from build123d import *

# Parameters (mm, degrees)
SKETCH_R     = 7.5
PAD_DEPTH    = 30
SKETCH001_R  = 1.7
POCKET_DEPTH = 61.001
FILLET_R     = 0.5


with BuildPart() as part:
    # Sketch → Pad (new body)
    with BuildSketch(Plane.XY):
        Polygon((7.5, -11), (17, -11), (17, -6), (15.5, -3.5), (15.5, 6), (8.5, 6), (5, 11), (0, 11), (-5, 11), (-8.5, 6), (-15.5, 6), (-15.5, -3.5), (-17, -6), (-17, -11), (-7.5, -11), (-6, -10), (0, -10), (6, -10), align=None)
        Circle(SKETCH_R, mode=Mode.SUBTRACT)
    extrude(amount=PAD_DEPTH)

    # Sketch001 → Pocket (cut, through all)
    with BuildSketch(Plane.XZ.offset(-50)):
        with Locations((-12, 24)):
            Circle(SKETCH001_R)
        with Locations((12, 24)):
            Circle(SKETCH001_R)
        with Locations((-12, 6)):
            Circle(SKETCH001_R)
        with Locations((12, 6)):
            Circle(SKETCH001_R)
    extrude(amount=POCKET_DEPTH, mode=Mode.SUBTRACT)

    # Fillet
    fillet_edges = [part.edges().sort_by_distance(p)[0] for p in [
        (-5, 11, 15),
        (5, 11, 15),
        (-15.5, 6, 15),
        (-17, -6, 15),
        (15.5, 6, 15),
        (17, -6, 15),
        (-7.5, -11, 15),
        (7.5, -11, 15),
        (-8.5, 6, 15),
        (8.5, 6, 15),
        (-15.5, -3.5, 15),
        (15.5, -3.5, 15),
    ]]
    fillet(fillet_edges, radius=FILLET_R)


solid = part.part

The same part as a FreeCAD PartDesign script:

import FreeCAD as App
import Part
import Sketcher
from FreeCAD import Vector
Q = App.Units.Quantity


def edges_at(feature, points):
    """Names of the edges that pass closest to the given points."""
    edges = feature.Shape.Edges
    near = lambda p: min(range(len(edges)), key=lambda i: edges[i].distToShape(Part.Vertex(*p))[0])
    return sorted({f"Edge{near(p) + 1}" for p in points})

doc = App.newDocument("Part")
body = doc.addObject("PartDesign::Body", "Body")

sketch1 = body.newObject("Sketcher::SketchObject", "Sketch")
sketch1.AttachmentSupport = (doc.getObject("XY_Plane"), [""])
sketch1.MapMode = "FlatFace"
sketch1.addGeometry([
    Part.LineSegment(Vector(7.5, -11, 0), Vector(17, -11, 0)),
    Part.LineSegment(Vector(17, -11, 0), Vector(17, -6, 0)),
    Part.LineSegment(Vector(17, -6, 0), Vector(15.5, -3.5, 0)),
    Part.LineSegment(Vector(15.5, -3.5, 0), Vector(15.5, 6, 0)),
    Part.LineSegment(Vector(15.5, 6, 0), Vector(8.5, 6, 0)),
    Part.LineSegment(Vector(8.5, 6, 0), Vector(5, 11, 0)),
    Part.LineSegment(Vector(5, 11, 0), Vector(-5, 11, 0)),
    Part.LineSegment(Vector(-5, 11, 0), Vector(-8.5, 6, 0)),
    Part.LineSegment(Vector(-8.5, 6, 0), Vector(-15.5, 6, 0)),
    Part.LineSegment(Vector(-15.5, 6, 0), Vector(-15.5, -3.5, 0)),
    Part.LineSegment(Vector(-15.5, -3.5, 0), Vector(-17, -6, 0)),
    Part.LineSegment(Vector(-17, -6, 0), Vector(-17, -11, 0)),
    Part.LineSegment(Vector(-17, -11, 0), Vector(-7.5, -11, 0)),
    Part.LineSegment(Vector(-7.5, -11, 0), Vector(-6, -10, 0)),
    Part.LineSegment(Vector(-6, -10, 0), Vector(6, -10, 0)),
    Part.LineSegment(Vector(6, -10, 0), Vector(7.5, -11, 0)),
    Part.Circle(Vector(0, 0, 0), Vector(0, 0, 1), 7.5),
], False)
sketch1.addConstraint([
    Sketcher.Constraint("Coincident", 0, 2, 1, 1),
    Sketcher.Constraint("Coincident", 1, 2, 2, 1),
    Sketcher.Constraint("Coincident", 2, 2, 3, 1),
    Sketcher.Constraint("Coincident", 3, 2, 4, 1),
    Sketcher.Constraint("Coincident", 4, 2, 5, 1),
    Sketcher.Constraint("Coincident", 5, 2, 6, 1),
    Sketcher.Constraint("Coincident", 6, 2, 7, 1),
    Sketcher.Constraint("Coincident", 7, 2, 8, 1),
    Sketcher.Constraint("Coincident", 8, 2, 9, 1),
    Sketcher.Constraint("Coincident", 9, 2, 10, 1),
    Sketcher.Constraint("Coincident", 10, 2, 11, 1),
    Sketcher.Constraint("Coincident", 11, 2, 12, 1),
    Sketcher.Constraint("Coincident", 12, 2, 13, 1),
    Sketcher.Constraint("Coincident", 13, 2, 14, 1),
    Sketcher.Constraint("Coincident", 14, 2, 15, 1),
    Sketcher.Constraint("Coincident", 15, 2, 0, 1),
    Sketcher.Constraint("Horizontal", 0),
    Sketcher.Constraint("Vertical", 1),
    Sketcher.Constraint("Vertical", 3),
    Sketcher.Constraint("Horizontal", 4),
    Sketcher.Constraint("Horizontal", 6),
    Sketcher.Constraint("Horizontal", 8),
    Sketcher.Constraint("Vertical", 9),
    Sketcher.Constraint("Vertical", 11),
    Sketcher.Constraint("Horizontal", 12),
    Sketcher.Constraint("Horizontal", 14),
    Sketcher.Constraint("Coincident", 16, 3, -1, 1),
    Sketcher.Constraint("Symmetric", 4, 2, 7, 2, -2),
    Sketcher.Constraint("Symmetric", 2, 2, 9, 2, -2),
    Sketcher.Constraint("Symmetric", 1, 2, 10, 2, -2),
    Sketcher.Constraint("Symmetric", 12, 2, 15, 2, -2),
    Sketcher.Constraint("Equal", 12, 3),
    Sketcher.Constraint("Equal", 5, 7),
    Sketcher.Constraint("Equal", 13, 15),
    Sketcher.Constraint("Diameter", 16, Q("15 mm")),
    Sketcher.Constraint("DistanceX", 4, 2, 4, 1, Q("7 mm")),
    Sketcher.Constraint("DistanceX", 6, 2, 6, 1, Q("10 mm")),
    Sketcher.Constraint("DistanceX", 14, 1, 14, 2, Q("12 mm")),
    Sketcher.Constraint("DistanceY", 1, 1, 1, 2, Q("5 mm")),
    Sketcher.Constraint("DistanceX", 0, 1, 0, 2, Q("9.5 mm")),
    Sketcher.Constraint("DistanceX", -1, 1, 0, 2, Q("17 mm")),
    Sketcher.Constraint("DistanceY", 0, 2, -1, 1, Q("11 mm")),
    Sketcher.Constraint("DistanceY", -1, 1, 3, 2, Q("6 mm")),
    Sketcher.Constraint("DistanceY", -1, 1, 5, 2, Q("11 mm")),
    Sketcher.Constraint("DistanceY", 13, 2, -1, 1, Q("10 mm")),
    Sketcher.Constraint("DistanceX", 7, 2, 4, 2, Q("17 mm")),
])
pad1 = body.newObject("PartDesign::Pad", "Pad")
pad1.Profile = sketch1
pad1.Length = 30

sketch2 = body.newObject("Sketcher::SketchObject", "Sketch001")
sketch2.AttachmentSupport = (doc.getObject("XZ_Plane"), [""])
sketch2.MapMode = "FlatFace"
sketch2.AttachmentOffset = App.Placement(Vector(0, 0, -50), App.Rotation())
sketch2.addGeometry([
    Part.Circle(Vector(-12, 24, 0), Vector(0, 0, 1), 1.7),
    Part.Circle(Vector(12, 24, 0), Vector(0, 0, 1), 1.7),
    Part.Circle(Vector(-12, 6, 0), Vector(0, 0, 1), 1.7),
    Part.Circle(Vector(12, 6, 0), Vector(0, 0, 1), 1.7),
], False)
sketch2.addConstraint([
    Sketcher.Constraint("Equal", 0, 1),
    Sketcher.Constraint("Equal", 1, 2),
    Sketcher.Constraint("Equal", 2, 3),
    Sketcher.Constraint("Symmetric", 0, 3, 1, 3, -2),
    Sketcher.Constraint("Symmetric", 2, 3, 3, 3, -2),
    Sketcher.Constraint("Vertical", 0, 3, 2, 3),
    Sketcher.Constraint("Diameter", 0, Q("3.4 mm")),
    Sketcher.Constraint("DistanceX", 0, 3, -1, 1, Q("12 mm")),
    Sketcher.Constraint("DistanceY", -1, 1, 0, 3, Q("24 mm")),
    Sketcher.Constraint("DistanceY", -1, 1, 2, 3, Q("6 mm")),
])
pocket1 = body.newObject("PartDesign::Pocket", "Pocket")
pocket1.Profile = sketch2
pocket1.Type = "ThroughAll"
pocket1.Reversed = True
doc.recompute()

fillet = body.newObject("PartDesign::Fillet", "Fillet")
fillet.Base = (pocket1, edges_at(pocket1, [
    (-5, 11, 15),
    (5, 11, 15),
    (-15.5, 6, 15),
    (-17, -6, 15),
    (15.5, 6, 15),
    (17, -6, 15),
    (-7.5, -11, 15),
    (7.5, -11, 15),
    (-8.5, 6, 15),
    (8.5, 6, 15),
    (-15.5, -3.5, 15),
    (15.5, -3.5, 15),
]))
fillet.Radius = 0.5

doc.recompute()
